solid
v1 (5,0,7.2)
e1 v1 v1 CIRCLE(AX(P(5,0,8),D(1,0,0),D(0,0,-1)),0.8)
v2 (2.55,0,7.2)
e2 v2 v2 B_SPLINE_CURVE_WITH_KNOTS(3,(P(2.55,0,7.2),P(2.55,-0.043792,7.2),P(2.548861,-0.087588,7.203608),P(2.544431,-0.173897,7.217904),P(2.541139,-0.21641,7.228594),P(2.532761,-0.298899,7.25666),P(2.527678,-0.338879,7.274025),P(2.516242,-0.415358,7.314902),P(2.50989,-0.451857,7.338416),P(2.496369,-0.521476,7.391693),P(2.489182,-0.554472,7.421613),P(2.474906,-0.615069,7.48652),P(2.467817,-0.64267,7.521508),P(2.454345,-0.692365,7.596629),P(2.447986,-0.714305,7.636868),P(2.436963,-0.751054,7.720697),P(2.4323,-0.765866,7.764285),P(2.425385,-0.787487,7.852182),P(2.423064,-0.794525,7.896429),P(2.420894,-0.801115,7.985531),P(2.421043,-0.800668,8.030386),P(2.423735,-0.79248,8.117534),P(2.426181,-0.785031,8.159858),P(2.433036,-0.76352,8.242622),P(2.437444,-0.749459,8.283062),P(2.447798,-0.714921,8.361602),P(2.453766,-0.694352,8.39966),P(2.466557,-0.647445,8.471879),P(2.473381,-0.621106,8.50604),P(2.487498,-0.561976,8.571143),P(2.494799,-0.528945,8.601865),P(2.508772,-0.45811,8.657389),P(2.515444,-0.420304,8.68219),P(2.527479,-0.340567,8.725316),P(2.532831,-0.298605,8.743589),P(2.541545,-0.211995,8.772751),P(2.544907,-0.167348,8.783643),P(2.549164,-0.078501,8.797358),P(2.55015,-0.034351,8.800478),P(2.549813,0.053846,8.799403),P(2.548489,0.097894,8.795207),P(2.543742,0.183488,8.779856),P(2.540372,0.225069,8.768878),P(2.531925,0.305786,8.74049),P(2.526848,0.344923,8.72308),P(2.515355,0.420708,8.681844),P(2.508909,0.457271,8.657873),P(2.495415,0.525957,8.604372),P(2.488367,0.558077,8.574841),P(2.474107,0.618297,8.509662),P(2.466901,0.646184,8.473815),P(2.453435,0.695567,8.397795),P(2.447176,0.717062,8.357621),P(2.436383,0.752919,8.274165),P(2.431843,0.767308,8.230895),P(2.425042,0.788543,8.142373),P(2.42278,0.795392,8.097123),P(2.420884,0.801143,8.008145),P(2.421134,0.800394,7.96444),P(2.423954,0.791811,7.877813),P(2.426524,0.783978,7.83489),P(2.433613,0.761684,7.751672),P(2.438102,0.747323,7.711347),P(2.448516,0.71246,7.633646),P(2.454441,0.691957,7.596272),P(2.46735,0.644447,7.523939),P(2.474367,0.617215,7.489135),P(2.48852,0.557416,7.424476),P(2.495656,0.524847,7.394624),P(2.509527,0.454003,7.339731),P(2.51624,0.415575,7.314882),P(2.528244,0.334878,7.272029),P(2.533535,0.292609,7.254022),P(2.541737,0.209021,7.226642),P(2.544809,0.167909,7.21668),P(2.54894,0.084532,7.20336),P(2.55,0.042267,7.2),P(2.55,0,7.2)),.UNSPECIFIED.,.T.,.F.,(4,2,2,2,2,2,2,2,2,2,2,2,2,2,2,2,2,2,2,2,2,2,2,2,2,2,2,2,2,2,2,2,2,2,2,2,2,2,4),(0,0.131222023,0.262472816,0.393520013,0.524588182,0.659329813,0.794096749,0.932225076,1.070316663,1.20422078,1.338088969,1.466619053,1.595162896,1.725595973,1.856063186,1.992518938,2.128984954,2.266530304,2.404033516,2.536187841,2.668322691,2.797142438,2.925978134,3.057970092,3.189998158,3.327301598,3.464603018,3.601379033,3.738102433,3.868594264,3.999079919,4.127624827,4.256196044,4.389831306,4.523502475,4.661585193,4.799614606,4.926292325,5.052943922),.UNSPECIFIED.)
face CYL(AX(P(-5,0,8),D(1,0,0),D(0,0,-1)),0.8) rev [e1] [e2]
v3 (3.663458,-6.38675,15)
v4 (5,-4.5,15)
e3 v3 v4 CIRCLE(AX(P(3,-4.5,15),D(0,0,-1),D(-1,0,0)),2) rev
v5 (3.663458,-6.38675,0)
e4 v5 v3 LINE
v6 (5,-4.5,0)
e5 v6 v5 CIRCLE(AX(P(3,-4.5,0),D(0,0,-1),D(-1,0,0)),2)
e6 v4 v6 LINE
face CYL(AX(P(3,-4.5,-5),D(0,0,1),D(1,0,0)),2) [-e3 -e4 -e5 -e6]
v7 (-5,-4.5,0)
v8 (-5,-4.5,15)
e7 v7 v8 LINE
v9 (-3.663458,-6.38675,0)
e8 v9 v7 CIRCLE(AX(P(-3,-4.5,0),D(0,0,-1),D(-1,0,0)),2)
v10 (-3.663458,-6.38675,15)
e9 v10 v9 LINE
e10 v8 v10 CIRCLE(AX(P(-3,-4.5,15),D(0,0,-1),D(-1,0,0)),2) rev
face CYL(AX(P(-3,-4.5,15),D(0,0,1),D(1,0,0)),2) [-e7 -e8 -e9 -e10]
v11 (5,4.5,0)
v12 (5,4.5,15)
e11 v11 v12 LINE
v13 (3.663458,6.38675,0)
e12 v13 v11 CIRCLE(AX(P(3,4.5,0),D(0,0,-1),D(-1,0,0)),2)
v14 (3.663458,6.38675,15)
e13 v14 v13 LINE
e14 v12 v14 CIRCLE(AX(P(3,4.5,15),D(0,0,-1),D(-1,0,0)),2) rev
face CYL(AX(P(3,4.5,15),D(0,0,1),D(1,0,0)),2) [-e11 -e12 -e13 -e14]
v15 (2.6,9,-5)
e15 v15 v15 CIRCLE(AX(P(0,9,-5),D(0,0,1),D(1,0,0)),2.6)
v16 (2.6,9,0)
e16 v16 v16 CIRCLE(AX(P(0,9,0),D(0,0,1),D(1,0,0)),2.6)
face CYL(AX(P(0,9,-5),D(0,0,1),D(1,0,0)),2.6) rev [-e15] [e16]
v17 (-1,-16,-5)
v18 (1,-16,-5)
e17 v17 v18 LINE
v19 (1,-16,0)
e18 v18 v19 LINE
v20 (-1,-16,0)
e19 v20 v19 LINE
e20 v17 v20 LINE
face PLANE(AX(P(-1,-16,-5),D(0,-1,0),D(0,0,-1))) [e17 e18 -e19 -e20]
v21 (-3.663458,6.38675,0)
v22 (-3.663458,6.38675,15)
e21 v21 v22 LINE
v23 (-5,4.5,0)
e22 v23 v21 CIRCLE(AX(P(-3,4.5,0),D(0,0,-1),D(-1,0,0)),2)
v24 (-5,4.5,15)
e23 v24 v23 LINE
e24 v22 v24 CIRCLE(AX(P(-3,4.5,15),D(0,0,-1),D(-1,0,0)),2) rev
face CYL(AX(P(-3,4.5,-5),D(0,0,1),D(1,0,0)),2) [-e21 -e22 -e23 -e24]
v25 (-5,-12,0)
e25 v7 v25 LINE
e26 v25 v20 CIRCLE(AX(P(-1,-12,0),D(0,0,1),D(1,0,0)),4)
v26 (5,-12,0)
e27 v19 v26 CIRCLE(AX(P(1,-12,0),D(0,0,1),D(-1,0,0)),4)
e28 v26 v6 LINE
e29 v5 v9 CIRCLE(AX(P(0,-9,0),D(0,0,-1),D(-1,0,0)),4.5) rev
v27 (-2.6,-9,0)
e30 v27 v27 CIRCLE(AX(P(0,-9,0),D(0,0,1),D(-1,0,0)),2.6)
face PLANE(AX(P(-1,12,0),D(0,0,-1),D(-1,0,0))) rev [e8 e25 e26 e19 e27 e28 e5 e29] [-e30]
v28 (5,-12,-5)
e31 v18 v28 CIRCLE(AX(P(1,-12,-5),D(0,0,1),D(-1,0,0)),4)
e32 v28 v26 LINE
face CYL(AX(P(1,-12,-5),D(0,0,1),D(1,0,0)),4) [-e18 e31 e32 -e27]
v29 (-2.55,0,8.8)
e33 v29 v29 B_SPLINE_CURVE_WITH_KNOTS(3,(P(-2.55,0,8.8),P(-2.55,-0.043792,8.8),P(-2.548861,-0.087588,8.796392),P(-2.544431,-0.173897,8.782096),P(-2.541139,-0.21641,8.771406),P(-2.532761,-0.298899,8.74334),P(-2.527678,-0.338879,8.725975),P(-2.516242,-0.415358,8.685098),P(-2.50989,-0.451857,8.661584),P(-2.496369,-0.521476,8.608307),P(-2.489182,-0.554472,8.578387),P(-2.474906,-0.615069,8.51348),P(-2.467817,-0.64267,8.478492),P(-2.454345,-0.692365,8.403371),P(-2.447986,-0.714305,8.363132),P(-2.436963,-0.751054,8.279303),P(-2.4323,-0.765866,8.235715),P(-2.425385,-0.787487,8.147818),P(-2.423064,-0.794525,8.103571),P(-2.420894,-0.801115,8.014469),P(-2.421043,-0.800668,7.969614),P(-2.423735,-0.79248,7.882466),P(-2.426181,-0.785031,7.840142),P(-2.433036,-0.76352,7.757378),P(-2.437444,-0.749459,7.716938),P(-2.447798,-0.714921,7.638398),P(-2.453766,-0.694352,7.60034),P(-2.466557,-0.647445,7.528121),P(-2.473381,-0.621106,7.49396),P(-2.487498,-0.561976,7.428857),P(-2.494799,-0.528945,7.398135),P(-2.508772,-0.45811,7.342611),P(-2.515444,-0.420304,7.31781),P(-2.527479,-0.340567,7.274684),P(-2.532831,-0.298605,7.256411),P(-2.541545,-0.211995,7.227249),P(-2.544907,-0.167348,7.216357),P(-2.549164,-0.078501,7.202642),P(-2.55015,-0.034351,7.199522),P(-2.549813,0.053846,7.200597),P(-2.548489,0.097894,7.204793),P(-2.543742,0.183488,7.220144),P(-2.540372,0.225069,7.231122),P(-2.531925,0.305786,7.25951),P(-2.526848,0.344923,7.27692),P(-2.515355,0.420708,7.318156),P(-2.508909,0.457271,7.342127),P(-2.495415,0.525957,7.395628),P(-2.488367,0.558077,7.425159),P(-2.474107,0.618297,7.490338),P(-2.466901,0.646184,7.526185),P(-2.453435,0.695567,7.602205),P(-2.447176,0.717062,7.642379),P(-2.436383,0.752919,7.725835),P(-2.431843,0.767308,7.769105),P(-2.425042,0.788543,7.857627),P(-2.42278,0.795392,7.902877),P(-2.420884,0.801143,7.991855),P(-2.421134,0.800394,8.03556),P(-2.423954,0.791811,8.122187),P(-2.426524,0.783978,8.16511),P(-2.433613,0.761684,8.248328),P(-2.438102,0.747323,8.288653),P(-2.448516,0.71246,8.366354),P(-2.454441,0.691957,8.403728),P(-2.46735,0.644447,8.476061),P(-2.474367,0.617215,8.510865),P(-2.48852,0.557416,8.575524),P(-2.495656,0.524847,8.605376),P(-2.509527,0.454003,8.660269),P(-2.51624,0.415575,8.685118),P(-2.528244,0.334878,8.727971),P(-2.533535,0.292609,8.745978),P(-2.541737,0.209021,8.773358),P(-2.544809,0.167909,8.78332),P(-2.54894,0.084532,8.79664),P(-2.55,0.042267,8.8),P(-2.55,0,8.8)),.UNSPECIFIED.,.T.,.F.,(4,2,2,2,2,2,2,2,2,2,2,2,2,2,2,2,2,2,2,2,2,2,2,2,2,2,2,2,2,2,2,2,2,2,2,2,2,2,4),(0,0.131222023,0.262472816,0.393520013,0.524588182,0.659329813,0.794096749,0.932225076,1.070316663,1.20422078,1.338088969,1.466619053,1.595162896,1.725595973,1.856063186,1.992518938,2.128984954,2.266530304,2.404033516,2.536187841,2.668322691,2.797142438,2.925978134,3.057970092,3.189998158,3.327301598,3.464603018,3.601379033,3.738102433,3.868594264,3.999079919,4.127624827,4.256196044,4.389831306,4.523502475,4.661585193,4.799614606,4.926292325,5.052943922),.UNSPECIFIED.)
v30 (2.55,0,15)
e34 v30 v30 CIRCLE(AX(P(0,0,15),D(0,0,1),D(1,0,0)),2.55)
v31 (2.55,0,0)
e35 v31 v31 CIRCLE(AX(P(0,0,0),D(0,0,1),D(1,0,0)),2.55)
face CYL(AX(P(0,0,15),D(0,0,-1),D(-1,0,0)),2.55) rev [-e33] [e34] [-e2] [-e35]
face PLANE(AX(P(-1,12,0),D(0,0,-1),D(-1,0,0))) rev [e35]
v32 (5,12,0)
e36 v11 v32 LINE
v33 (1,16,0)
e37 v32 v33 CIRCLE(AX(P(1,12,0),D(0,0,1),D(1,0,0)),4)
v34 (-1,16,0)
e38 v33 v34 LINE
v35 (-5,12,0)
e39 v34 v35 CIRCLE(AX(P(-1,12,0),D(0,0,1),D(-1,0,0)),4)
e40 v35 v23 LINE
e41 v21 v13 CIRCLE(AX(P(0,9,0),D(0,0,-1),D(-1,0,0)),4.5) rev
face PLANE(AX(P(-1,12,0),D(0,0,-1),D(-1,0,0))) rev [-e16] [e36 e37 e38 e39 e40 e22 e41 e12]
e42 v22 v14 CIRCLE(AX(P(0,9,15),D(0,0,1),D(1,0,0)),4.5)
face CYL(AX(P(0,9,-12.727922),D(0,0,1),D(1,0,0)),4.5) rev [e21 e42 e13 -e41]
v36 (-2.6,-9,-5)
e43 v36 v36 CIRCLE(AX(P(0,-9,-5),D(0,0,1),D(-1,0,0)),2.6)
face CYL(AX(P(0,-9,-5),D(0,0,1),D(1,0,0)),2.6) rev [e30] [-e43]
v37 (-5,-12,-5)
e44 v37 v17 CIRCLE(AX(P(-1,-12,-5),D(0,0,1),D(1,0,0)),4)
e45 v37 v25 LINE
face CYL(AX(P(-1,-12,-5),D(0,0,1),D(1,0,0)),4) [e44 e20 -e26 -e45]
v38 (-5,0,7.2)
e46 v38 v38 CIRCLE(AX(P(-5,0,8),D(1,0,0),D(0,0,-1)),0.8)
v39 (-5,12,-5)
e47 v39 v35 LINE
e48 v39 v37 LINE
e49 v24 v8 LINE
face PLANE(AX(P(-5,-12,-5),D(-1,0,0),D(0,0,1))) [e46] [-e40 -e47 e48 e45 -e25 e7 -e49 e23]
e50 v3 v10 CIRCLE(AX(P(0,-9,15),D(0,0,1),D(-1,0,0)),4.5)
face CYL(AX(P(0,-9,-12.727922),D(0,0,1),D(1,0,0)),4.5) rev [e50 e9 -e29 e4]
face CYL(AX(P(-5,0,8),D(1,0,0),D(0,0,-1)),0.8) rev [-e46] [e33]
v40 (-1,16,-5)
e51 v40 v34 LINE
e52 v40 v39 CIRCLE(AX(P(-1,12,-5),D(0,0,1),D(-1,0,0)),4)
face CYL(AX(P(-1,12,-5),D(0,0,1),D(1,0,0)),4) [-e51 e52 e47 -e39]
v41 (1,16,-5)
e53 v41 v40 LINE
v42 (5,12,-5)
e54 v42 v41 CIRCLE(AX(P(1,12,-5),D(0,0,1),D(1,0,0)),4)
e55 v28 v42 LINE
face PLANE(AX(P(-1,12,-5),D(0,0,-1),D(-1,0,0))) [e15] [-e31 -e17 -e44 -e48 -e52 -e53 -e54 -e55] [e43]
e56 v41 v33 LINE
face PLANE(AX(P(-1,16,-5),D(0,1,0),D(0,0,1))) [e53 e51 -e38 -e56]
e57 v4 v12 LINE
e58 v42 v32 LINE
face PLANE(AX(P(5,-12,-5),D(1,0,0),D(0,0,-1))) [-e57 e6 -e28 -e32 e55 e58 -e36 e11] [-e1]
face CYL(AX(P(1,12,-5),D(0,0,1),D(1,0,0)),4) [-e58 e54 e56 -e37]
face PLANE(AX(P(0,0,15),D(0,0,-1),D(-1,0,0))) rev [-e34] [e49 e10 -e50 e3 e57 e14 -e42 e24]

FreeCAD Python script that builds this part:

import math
import FreeCAD as App
import Part
import Sketcher

V = App.Vector


def edges_at(feature, points):
    """Names of the edges that pass closest to the given points."""
    edges = feature.Shape.Edges
    near = lambda p: min(range(len(edges)), key=lambda i: edges[i].distToShape(Part.Vertex(*p))[0])
    return sorted({f"Edge{near(p) + 1}" for p in points})


def add_polygon(sketch, points):
    """Adds a closed chain of lines whose ends are joined by coincident constraints."""
    first, n = sketch.GeometryCount, len(points)
    for a, b in zip(points, points[1:] + points[:1]):
        sketch.addGeometry(Part.LineSegment(App.Vector(*a, 0), App.Vector(*b, 0)), False)
    for i in range(n):
        sketch.addConstraint(Sketcher.Constraint("Coincident", first + i, 2, first + (i + 1) % n, 1))

doc = App.newDocument("Part")
body = doc.addObject("PartDesign::Body", "Body")

# Sketch on XY plane
sketch1 = doc.addObject("Sketcher::SketchObject", "Sketch")
body.addObject(sketch1)
sketch1.AttachmentSupport = (doc.XY_Plane, [""])
sketch1.MapMode = "FlatFace"
sketch1.addGeometry(Part.LineSegment(V(-5, 12, 0), V(-5, -12, 0)), False)
sketch1.addGeometry(Part.ArcOfCircle(Part.Circle(V(-1, -12, 0), V(0, 0, 1), 4), math.radians(180), math.radians(270)), False)
sketch1.addGeometry(Part.LineSegment(V(-1, -16, 0), V(1, -16, 0)), False)
sketch1.addGeometry(Part.ArcOfCircle(Part.Circle(V(1, -12, 0), V(0, 0, 1), 4), math.radians(-90), math.radians(0)), False)
sketch1.addGeometry(Part.LineSegment(V(5, -12, 0), V(5, 12, 0)), False)
sketch1.addGeometry(Part.ArcOfCircle(Part.Circle(V(1, 12, 0), V(0, 0, 1), 4), math.radians(0), math.radians(90)), False)
sketch1.addGeometry(Part.LineSegment(V(1, 16, 0), V(-1, 16, 0)), False)
sketch1.addGeometry(Part.ArcOfCircle(Part.Circle(V(-1, 12, 0), V(0, 0, 1), 4), math.radians(90), math.radians(180)), False)
sketch1.addGeometry(Part.Circle(V(0, -9, 0), V(0, 0, 1), 2.6), False)
sketch1.addGeometry(Part.Circle(V(0, 9, 0), V(0, 0, 1), 2.6), False)
sketch1.addConstraint(Sketcher.Constraint("Tangent", 0, 2, 1, 1))
sketch1.addConstraint(Sketcher.Constraint("Tangent", 1, 2, 2, 1))
sketch1.addConstraint(Sketcher.Constraint("Tangent", 2, 2, 3, 1))
sketch1.addConstraint(Sketcher.Constraint("Tangent", 3, 2, 4, 1))
sketch1.addConstraint(Sketcher.Constraint("Tangent", 4, 2, 5, 1))
sketch1.addConstraint(Sketcher.Constraint("Tangent", 5, 2, 6, 1))
sketch1.addConstraint(Sketcher.Constraint("Tangent", 6, 2, 7, 1))
sketch1.addConstraint(Sketcher.Constraint("Tangent", 7, 2, 0, 1))
sketch1.addConstraint(Sketcher.Constraint("Vertical", 0))
sketch1.addConstraint(Sketcher.Constraint("Horizontal", 2))
sketch1.addConstraint(Sketcher.Constraint("Vertical", 4))
sketch1.addConstraint(Sketcher.Constraint("Horizontal", 6))
sketch1.addConstraint(Sketcher.Constraint("Equal", 1, 3))
sketch1.addConstraint(Sketcher.Constraint("Equal", 3, 5))
sketch1.addConstraint(Sketcher.Constraint("Equal", 5, 7))
sketch1.addConstraint(Sketcher.Constraint("Equal", 8, 9))
sketch1.addConstraint(Sketcher.Constraint("Symmetric", 1, 3, 5, 3, -1, 1))
sketch1.addConstraint(Sketcher.Constraint("Symmetric", 8, 3, 9, 3, -1, 1))
sketch1.addConstraint(Sketcher.Constraint("PointOnObject", 8, 3, -2))
sketch1.addConstraint(Sketcher.Constraint("Radius", 1, 4.0))
sketch1.addConstraint(Sketcher.Constraint("Diameter", 8, 5.2))
sketch1.addConstraint(Sketcher.Constraint("DistanceX", 2, 1, 2, 2, 2.0))
sketch1.addConstraint(Sketcher.Constraint("DistanceY", 0, 2, 0, 1, 24.0))
sketch1.addConstraint(Sketcher.Constraint("DistanceY", 8, 3, -1, 1, 9.0))
pad1 = doc.addObject("PartDesign::Pad", "Pad")
body.addObject(pad1)
pad1.Profile = sketch1
pad1.Length = 5
pad1.Reversed = True

# Sketch on XY plane
sketch2 = doc.addObject("Sketcher::SketchObject", "Sketch001")
body.addObject(sketch2)
sketch2.AttachmentSupport = (doc.XY_Plane, [""])
sketch2.MapMode = "FlatFace"
add_polygon(sketch2, [(-5, 6.5), (-5, -6.5), (5, -6.5), (5, 6.5)])  # lines 0-3
sketch2.addGeometry(Part.Circle(V(0, 0, 0), V(0, 0, 1), 2.55), False)  # 4
sketch2.addConstraint(Sketcher.Constraint("Vertical", 0))
sketch2.addConstraint(Sketcher.Constraint("Horizontal", 1))
sketch2.addConstraint(Sketcher.Constraint("Vertical", 2))
sketch2.addConstraint(Sketcher.Constraint("Horizontal", 3))
sketch2.addConstraint(Sketcher.Constraint("Coincident", 4, 3, -1, 1))
sketch2.addConstraint(Sketcher.Constraint("Symmetric", 0, 2, 2, 2, -1, 1))
sketch2.addConstraint(Sketcher.Constraint("Diameter", 4, 5.1))
sketch2.addConstraint(Sketcher.Constraint("DistanceX", 1, 1, 1, 2, 10.0))
sketch2.addConstraint(Sketcher.Constraint("DistanceY", 0, 2, 0, 1, 13.0))
pad2 = doc.addObject("PartDesign::Pad", "Pad001")
body.addObject(pad2)
pad2.Profile = sketch2
pad2.Length = 15
doc.recompute()

fillet = doc.addObject("PartDesign::Fillet", "Fillet")
body.addObject(fillet)
fillet.Base = (pad2, edges_at(pad2, [
    (5, -6.5, 7.5),
    (5, 6.5, 7.5),
    (-5, 6.5, 7.5),
    (-5, -6.5, 7.5),
]))
fillet.Radius = 2

# Sketch on XY plane
sketch3 = doc.addObject("Sketcher::SketchObject", "Sketch002")
body.addObject(sketch3)
sketch3.AttachmentSupport = (doc.XY_Plane, [""])
sketch3.MapMode = "FlatFace"
sketch3.AttachmentOffset = App.Placement(V(0, 0, 15), App.Rotation())
sketch3.addGeometry(Part.Circle(V(0, 9, 0), V(0, 0, 1), 4.5), False)
sketch3.addGeometry(Part.Circle(V(0, -9, 0), V(0, 0, 1), 4.5), False)
sketch3.addConstraint(Sketcher.Constraint("Equal", 0, 1))
sketch3.addConstraint(Sketcher.Constraint("Symmetric", 0, 3, 1, 3, -1, 1))
sketch3.addConstraint(Sketcher.Constraint("PointOnObject", 0, 3, -2))
sketch3.addConstraint(Sketcher.Constraint("Diameter", 0, 9.0))
sketch3.addConstraint(Sketcher.Constraint("DistanceY", -1, 1, 0, 3, 9.0))
pocket1 = doc.addObject("PartDesign::Pocket", "Pocket")
body.addObject(pocket1)
pocket1.Profile = sketch3
pocket1.Length = 15

# Sketch on YZ plane
sketch4 = doc.addObject("Sketcher::SketchObject", "Sketch003")
body.addObject(sketch4)
sketch4.AttachmentSupport = (doc.YZ_Plane, [""])
sketch4.MapMode = "FlatFace"
sketch4.AttachmentOffset = App.Placement(V(0, 0, 5), App.Rotation())
sketch4.addGeometry(Part.Circle(V(0, 8, 0), V(0, 0, 1), 0.8), False)
sketch4.addConstraint(Sketcher.Constraint("PointOnObject", 0, 3, -2))
sketch4.addConstraint(Sketcher.Constraint("Diameter", 0, 1.6))
sketch4.addConstraint(Sketcher.Constraint("DistanceY", -1, 1, 0, 3, 8.0))
pocket2 = doc.addObject("PartDesign::Pocket", "Pocket001")
body.addObject(pocket2)
pocket2.Profile = sketch4
pocket2.Type = "ThroughAll"
pocket2.Midplane = True

doc.recompute()
